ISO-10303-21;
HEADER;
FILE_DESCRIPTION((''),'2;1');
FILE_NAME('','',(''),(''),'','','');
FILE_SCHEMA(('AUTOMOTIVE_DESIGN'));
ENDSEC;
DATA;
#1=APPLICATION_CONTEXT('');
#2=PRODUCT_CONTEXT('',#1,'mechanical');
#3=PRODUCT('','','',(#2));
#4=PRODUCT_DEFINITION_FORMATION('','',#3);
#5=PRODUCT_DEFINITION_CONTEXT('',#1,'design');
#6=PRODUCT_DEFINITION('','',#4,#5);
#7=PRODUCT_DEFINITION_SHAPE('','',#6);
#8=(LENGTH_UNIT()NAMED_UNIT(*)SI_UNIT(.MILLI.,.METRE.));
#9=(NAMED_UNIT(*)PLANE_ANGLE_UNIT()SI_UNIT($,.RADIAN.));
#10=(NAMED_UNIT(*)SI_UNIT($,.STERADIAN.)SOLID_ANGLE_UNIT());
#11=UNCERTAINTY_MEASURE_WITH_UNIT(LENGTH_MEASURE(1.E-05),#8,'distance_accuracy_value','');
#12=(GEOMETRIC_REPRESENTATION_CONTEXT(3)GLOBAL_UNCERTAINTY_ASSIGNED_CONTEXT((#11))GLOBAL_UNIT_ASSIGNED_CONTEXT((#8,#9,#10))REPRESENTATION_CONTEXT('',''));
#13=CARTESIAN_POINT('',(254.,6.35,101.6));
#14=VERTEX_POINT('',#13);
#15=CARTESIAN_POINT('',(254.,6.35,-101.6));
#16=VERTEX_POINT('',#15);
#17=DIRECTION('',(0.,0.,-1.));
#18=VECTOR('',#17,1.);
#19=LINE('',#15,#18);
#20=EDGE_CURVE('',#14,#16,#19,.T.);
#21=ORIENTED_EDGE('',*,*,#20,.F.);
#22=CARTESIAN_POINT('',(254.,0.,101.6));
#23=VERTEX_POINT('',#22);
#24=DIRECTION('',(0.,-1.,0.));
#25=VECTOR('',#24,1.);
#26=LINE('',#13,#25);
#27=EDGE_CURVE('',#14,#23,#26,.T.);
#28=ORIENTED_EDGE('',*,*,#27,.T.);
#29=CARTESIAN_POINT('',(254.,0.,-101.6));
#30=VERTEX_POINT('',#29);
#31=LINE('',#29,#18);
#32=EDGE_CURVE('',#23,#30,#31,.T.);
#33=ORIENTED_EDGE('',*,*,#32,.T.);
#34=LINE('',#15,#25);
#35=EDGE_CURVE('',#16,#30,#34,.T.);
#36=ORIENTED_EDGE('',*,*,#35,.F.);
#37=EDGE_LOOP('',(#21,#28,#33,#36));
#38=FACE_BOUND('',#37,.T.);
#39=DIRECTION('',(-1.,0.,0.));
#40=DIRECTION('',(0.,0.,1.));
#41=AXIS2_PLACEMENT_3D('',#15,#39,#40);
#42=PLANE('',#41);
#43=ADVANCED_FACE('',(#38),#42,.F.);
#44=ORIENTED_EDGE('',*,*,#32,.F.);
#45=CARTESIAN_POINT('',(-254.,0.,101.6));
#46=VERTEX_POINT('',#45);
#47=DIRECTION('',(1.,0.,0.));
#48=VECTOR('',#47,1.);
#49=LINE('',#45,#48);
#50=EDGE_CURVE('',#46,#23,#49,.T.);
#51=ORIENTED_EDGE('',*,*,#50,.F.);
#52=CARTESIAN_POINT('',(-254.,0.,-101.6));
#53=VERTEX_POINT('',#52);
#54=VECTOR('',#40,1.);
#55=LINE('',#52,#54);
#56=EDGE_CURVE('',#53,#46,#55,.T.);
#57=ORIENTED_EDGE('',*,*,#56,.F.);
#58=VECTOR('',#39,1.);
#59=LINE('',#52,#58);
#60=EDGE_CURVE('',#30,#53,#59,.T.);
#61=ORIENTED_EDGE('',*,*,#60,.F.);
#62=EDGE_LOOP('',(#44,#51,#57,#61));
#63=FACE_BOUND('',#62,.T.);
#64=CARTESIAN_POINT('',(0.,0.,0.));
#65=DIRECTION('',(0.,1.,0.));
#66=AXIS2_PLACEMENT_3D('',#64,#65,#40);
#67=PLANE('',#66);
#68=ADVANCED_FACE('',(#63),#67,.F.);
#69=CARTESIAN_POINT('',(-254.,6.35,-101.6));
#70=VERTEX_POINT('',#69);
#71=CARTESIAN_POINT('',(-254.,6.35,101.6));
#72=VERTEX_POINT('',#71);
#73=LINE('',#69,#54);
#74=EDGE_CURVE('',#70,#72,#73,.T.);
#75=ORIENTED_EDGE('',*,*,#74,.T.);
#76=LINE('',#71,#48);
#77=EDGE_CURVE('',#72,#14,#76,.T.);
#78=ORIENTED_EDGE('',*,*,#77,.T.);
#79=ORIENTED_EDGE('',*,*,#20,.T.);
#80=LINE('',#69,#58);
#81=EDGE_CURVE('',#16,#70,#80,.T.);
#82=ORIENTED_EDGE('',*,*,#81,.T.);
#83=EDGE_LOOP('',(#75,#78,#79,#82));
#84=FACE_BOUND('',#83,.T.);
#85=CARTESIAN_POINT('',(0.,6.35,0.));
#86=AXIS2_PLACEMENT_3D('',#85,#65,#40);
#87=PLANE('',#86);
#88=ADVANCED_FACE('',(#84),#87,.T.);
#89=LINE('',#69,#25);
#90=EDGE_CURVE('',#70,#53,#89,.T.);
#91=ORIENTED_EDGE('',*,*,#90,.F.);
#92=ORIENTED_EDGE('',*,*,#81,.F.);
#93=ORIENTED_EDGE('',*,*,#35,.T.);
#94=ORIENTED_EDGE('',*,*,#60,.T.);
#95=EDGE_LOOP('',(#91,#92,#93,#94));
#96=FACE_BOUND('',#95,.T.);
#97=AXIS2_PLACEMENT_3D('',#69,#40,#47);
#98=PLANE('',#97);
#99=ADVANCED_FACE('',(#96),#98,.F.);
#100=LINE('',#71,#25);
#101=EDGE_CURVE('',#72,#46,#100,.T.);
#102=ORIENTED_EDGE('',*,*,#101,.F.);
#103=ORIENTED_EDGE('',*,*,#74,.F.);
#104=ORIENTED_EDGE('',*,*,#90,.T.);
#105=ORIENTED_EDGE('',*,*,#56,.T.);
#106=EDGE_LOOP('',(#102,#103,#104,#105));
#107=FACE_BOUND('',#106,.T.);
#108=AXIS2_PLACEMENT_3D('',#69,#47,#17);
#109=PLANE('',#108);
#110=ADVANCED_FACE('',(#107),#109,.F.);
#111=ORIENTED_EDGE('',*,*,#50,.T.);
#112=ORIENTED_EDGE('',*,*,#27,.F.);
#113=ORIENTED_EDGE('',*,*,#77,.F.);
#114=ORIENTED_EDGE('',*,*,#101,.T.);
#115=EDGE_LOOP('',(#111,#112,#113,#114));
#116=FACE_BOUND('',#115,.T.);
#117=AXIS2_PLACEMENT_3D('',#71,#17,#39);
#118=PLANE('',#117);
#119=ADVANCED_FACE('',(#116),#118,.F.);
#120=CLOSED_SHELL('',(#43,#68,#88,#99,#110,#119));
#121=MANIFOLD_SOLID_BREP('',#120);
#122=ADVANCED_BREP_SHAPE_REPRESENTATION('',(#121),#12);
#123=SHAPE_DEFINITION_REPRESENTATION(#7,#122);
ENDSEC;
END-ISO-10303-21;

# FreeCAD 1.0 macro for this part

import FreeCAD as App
import Part
import Sketcher
from FreeCAD import Vector
Q = App.Units.Quantity

doc = App.newDocument("Part")
body = doc.addObject("PartDesign::Body", "Body")

# Sketch on XZ plane
sketch1 = body.newObject("Sketcher::SketchObject", "Sketch")
sketch1.AttachmentSupport = (doc.getObject("XZ_Plane"), [""])
sketch1.MapMode = "FlatFace"
sketch1.addGeometry([
    Part.LineSegment(Vector(-254, -102, 0), Vector(-254, 102, 0)),
    Part.LineSegment(Vector(-254, 102, 0), Vector(254, 102, 0)),
    Part.LineSegment(Vector(254, 102, 0), Vector(254, -102, 0)),
    Part.LineSegment(Vector(254, -102, 0), Vector(-254, -102, 0)),
], False)
sketch1.addConstraint([
    Sketcher.Constraint("Coincident", 0, 2, 1, 1),
    Sketcher.Constraint("Coincident", 1, 2, 2, 1),
    Sketcher.Constraint("Coincident", 2, 2, 3, 1),
    Sketcher.Constraint("Coincident", 3, 2, 0, 1),
    Sketcher.Constraint("Vertical", 0),
    Sketcher.Constraint("Horizontal", 1),
    Sketcher.Constraint("Vertical", 2),
    Sketcher.Constraint("Horizontal", 3),
    Sketcher.Constraint("Symmetric", 0, 2, 2, 2, -1, 1),
    Sketcher.Constraint("DistanceX", 1, 1, 1, 2, Q("20 in")),
    Sketcher.Constraint("DistanceY", 0, 1, 0, 2, Q("8 in")),
])
pad1 = body.newObject("PartDesign::Pad", "Pad")
pad1.Profile = sketch1
pad1.Length = Q("0.25 in")
pad1.Reversed = True

doc.recompute()
